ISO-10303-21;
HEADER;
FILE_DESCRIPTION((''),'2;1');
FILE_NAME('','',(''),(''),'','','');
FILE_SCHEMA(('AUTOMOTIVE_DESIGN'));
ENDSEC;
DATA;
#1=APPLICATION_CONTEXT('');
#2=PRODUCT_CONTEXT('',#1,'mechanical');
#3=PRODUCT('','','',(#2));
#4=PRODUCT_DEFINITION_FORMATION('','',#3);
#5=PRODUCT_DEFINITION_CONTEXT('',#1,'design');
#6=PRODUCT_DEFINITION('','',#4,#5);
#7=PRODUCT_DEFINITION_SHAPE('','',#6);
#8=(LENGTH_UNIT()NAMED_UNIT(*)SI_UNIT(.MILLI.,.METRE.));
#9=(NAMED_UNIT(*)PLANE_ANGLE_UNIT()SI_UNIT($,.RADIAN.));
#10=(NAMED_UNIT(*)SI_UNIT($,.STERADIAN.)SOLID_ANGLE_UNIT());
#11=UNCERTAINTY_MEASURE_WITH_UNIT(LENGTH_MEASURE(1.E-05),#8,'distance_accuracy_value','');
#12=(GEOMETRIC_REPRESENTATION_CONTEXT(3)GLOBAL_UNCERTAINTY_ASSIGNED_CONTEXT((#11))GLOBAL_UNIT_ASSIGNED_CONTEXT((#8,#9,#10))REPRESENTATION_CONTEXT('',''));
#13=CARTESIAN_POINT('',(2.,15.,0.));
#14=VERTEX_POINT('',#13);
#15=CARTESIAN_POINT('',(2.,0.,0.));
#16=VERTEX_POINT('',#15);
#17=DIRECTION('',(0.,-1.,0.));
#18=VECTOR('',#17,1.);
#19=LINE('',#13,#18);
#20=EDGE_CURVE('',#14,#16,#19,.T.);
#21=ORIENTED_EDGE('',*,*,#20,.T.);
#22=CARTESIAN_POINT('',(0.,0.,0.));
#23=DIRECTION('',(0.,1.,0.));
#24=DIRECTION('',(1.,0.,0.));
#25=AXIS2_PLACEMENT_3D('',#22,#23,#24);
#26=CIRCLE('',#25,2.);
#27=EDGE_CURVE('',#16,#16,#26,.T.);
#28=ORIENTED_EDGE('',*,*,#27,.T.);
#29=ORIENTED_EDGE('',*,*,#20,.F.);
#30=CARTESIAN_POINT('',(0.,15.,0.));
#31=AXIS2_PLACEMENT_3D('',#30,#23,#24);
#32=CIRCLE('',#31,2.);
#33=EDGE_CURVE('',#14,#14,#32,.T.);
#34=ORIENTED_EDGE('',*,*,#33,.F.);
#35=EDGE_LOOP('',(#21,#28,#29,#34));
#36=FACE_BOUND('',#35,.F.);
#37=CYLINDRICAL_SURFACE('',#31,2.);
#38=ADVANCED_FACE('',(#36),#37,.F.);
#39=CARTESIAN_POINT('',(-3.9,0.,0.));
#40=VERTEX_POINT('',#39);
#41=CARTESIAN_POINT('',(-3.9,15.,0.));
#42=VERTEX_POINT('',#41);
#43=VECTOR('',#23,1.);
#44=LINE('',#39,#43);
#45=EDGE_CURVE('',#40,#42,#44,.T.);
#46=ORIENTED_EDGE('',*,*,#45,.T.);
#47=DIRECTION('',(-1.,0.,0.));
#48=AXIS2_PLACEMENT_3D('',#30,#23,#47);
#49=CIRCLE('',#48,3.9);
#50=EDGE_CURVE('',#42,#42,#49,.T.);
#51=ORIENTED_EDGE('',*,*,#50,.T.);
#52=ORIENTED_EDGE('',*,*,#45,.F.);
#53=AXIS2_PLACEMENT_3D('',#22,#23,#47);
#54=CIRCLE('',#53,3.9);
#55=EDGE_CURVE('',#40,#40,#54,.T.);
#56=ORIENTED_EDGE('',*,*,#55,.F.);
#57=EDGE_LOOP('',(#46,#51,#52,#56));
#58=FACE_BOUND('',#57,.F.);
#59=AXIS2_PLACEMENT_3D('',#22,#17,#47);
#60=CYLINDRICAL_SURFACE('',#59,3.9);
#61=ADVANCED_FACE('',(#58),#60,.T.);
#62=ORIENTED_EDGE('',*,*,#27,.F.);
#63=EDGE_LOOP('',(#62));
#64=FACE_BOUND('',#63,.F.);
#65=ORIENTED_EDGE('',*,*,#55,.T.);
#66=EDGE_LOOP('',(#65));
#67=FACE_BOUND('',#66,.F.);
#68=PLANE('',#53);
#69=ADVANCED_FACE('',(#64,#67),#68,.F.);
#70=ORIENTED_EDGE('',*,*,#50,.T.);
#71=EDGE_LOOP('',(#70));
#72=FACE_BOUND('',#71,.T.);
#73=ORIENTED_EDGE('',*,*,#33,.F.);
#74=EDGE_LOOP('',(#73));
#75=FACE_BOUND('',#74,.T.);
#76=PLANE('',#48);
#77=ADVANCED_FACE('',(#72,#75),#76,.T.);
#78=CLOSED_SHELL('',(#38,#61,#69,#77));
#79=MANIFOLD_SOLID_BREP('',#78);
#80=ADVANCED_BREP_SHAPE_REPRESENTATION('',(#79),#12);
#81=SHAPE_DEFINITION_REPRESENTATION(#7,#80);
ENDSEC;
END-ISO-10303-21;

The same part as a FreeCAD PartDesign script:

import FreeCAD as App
import Part
import Sketcher
from FreeCAD import Vector

doc = App.newDocument("Part")
body = doc.addObject("PartDesign::Body", "Body")

sketch1 = doc.addObject("Sketcher::SketchObject", "Sketch")
body.addObject(sketch1)
sketch1.AttachmentSupport = (doc.XZ_Plane, [""])
sketch1.MapMode = "FlatFace"
sketch1.addGeometry(Part.Circle(Vector(0, 0, 0), Vector(0, 0, 1), 3.9), False)
sketch1.addConstraint(Sketcher.Constraint("Coincident", 0, 3, -1, 1))
sketch1.addConstraint(Sketcher.Constraint("Diameter", 0, 7.8))
pad1 = doc.addObject("PartDesign::Pad", "Pad")
body.addObject(pad1)
pad1.Profile = sketch1
pad1.Length = 15
pad1.Reversed = True

sketch2 = doc.addObject("Sketcher::SketchObject", "Sketch001")
body.addObject(sketch2)
sketch2.AttachmentSupport = (doc.XZ_Plane, [""])
sketch2.MapMode = "FlatFace"
sketch2.AttachmentOffset = App.Placement(Vector(0, 0, -15), App.Rotation())
sketch2.addGeometry(Part.Circle(Vector(0, 0, 0), Vector(0, 0, 1), 2), False)
sketch2.addConstraint(Sketcher.Constraint("Coincident", 0, 3, -1, 1))
sketch2.addConstraint(Sketcher.Constraint("Diameter", 0, 4.0))
pocket1 = doc.addObject("PartDesign::Pocket", "Pocket")
body.addObject(pocket1)
pocket1.Profile = sketch2
pocket1.Type = "ThroughAll"
pocket1.Reversed = True

doc.recompute()
